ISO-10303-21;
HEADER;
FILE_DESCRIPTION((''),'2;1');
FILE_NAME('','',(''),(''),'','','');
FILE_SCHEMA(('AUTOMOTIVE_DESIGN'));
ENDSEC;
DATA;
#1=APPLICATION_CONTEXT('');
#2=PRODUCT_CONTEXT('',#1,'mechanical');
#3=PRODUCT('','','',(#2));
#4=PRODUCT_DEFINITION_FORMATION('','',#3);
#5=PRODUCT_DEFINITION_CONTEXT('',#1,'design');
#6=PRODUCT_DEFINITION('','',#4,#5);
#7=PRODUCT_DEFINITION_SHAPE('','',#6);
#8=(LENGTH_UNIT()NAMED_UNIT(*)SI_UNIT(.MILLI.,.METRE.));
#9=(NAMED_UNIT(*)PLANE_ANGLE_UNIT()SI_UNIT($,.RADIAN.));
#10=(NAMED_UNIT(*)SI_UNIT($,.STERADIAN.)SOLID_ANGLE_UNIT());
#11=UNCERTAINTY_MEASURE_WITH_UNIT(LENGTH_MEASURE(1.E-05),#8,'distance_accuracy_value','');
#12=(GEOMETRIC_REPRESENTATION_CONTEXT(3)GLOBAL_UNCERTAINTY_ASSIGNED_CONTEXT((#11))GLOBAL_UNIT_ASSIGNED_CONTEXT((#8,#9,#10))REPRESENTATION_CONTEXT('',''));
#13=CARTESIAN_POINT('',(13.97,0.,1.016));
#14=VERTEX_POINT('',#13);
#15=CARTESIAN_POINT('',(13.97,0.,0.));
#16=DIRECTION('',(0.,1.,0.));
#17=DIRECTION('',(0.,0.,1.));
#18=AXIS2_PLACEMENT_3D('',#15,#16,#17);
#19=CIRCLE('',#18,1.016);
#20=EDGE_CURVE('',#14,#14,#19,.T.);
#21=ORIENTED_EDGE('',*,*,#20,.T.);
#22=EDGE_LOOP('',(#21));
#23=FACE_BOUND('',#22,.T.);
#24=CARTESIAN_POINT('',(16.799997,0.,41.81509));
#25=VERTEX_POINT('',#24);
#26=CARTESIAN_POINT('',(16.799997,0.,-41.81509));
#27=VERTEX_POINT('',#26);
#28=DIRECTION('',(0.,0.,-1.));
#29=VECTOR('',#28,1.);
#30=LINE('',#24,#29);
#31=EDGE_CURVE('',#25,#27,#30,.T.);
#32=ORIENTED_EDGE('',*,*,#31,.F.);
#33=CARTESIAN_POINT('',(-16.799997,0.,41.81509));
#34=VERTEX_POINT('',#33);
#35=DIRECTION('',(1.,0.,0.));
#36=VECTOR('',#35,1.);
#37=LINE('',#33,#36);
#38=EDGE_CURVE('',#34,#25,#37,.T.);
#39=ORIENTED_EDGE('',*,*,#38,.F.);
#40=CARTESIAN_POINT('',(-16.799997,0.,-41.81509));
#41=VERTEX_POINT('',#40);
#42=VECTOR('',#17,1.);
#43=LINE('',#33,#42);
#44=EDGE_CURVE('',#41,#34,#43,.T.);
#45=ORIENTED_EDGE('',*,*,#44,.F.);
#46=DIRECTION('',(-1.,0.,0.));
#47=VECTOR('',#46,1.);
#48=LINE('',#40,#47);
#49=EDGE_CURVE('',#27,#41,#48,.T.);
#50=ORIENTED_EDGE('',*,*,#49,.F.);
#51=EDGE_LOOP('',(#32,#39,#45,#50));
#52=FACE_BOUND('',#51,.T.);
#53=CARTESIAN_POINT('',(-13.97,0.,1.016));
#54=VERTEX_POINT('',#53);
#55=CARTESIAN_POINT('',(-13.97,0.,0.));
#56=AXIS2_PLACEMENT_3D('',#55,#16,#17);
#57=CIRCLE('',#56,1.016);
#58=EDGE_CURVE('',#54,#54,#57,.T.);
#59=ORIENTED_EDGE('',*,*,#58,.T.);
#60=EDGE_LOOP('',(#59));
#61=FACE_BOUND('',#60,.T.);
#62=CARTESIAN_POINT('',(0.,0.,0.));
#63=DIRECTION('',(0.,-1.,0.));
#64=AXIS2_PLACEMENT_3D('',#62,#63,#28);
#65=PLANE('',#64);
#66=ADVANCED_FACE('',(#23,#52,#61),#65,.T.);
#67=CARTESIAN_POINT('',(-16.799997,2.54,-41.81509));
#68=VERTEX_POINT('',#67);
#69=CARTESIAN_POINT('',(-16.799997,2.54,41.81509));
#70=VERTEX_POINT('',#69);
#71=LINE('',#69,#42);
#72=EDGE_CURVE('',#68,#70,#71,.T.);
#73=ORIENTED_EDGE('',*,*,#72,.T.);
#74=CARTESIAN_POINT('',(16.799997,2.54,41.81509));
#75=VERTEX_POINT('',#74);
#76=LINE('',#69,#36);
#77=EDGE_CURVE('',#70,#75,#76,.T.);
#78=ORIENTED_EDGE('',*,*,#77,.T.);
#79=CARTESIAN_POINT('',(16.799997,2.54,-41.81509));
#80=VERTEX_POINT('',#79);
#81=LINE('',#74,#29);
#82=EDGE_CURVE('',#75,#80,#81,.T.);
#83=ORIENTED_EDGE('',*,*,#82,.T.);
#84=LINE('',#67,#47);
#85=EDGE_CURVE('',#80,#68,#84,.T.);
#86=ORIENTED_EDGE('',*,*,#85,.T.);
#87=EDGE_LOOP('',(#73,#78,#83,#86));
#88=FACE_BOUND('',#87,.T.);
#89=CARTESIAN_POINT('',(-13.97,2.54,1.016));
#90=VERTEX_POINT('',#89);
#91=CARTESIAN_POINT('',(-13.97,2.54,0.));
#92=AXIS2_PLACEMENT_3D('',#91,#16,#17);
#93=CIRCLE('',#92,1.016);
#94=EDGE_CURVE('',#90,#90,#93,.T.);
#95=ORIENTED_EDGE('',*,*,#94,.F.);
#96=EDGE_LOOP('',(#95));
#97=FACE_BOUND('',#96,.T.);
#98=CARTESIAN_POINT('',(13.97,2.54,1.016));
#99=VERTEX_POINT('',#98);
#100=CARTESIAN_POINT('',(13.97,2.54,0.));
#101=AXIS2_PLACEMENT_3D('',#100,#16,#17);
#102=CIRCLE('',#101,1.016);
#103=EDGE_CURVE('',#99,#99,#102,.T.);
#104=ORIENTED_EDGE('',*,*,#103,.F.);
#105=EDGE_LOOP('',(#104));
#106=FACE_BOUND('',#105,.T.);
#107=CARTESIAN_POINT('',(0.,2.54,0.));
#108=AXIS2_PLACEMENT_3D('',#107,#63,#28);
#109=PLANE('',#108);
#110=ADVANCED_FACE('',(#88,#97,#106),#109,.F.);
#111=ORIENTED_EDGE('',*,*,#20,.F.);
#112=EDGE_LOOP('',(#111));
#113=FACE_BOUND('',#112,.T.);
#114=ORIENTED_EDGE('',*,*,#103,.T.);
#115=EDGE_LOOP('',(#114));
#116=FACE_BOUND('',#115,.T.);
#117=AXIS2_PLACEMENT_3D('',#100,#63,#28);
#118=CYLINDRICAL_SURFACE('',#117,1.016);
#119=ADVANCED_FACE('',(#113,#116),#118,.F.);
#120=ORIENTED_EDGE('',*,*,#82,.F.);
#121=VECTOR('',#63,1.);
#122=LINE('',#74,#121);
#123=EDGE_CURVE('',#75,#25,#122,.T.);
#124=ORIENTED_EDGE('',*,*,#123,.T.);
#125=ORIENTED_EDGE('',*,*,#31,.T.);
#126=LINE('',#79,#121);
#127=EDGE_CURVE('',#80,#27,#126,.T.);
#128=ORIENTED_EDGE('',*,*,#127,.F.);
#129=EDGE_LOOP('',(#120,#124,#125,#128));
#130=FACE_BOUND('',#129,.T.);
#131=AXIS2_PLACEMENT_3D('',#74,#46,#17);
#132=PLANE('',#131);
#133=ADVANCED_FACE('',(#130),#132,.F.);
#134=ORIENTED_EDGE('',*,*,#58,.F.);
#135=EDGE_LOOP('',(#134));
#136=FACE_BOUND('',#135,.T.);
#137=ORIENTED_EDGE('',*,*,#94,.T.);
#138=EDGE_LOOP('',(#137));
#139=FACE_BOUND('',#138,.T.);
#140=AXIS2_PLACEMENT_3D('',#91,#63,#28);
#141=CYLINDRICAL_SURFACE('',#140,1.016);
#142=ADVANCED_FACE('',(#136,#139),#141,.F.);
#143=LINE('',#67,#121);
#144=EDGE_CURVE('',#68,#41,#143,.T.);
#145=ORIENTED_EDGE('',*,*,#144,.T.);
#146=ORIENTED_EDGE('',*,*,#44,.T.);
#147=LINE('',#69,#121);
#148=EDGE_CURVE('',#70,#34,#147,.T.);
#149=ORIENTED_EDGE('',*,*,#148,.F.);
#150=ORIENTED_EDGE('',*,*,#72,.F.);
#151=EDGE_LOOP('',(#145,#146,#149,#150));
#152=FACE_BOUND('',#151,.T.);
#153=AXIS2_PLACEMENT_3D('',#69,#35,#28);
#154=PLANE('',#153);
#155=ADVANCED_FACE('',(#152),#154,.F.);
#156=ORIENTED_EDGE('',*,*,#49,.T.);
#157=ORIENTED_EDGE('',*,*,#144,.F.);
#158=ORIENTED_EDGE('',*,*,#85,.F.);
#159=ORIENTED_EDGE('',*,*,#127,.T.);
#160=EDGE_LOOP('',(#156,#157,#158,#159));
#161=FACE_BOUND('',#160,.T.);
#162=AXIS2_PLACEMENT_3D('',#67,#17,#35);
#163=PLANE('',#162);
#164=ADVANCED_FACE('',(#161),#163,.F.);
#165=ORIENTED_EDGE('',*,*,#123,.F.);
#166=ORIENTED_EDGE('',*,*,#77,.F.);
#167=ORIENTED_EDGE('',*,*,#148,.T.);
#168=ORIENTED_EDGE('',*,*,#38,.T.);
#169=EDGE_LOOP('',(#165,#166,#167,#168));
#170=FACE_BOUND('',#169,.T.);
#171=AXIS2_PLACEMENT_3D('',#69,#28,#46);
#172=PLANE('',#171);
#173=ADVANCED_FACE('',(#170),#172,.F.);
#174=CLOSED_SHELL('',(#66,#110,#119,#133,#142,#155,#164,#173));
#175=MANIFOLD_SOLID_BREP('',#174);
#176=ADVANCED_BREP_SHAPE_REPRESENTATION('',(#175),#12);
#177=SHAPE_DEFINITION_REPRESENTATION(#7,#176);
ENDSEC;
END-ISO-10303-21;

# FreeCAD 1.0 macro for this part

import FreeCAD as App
import Part
import Sketcher
from FreeCAD import Vector
Q = App.Units.Quantity

doc = App.newDocument("Part")
params = doc.addObject("Spreadsheet::Sheet", "Params")
for row, (alias, value) in enumerate([
    ("sketch1_diameter", "0.08 in"),
    ("pad1_length", "0.1 in"),
], start=1):
    params.set(f"A{row}", alias)
    params.set(f"B{row}", "=" + value)
    params.setAlias(f"B{row}", alias)

body = doc.addObject("PartDesign::Body", "Body")

sketch1 = body.newObject("Sketcher::SketchObject", "Sketch")
sketch1.AttachmentSupport = (doc.getObject("XZ_Plane"), [""])
sketch1.MapMode = "FlatFace"
sketch1.addGeometry(Part.LineSegment(Vector(-16.799997, -41.81509, 0), Vector(-16.799997, 41.81509, 0)), False)
sketch1.addGeometry(Part.LineSegment(Vector(-16.799997, 41.81509, 0), Vector(16.799997, 41.81509, 0)), False)
sketch1.addGeometry(Part.LineSegment(Vector(16.799997, 41.81509, 0), Vector(16.799997, -41.81509, 0)), False)
sketch1.addGeometry(Part.LineSegment(Vector(16.799997, -41.81509, 0), Vector(-16.799997, -41.81509, 0)), False)
sketch1.addGeometry(Part.Circle(Vector(-13.97, 0, 0), Vector(0, 0, 1), 1.016), False)
sketch1.addGeometry(Part.Circle(Vector(13.97, 0, 0), Vector(0, 0, 1), 1.016), False)
sketch1.addConstraint(Sketcher.Constraint("Coincident", 0, 2, 1, 1))
sketch1.addConstraint(Sketcher.Constraint("Coincident", 1, 2, 2, 1))
sketch1.addConstraint(Sketcher.Constraint("Coincident", 2, 2, 3, 1))
sketch1.addConstraint(Sketcher.Constraint("Coincident", 3, 2, 0, 1))
sketch1.addConstraint(Sketcher.Constraint("Vertical", 0))
sketch1.addConstraint(Sketcher.Constraint("Horizontal", 1))
sketch1.addConstraint(Sketcher.Constraint("Vertical", 2))
sketch1.addConstraint(Sketcher.Constraint("Horizontal", 3))
sketch1.addConstraint(Sketcher.Constraint("Equal", 4, 5))
sketch1.addConstraint(Sketcher.Constraint("Symmetric", 4, 3, 5, 3, -1, 1))
sketch1.addConstraint(Sketcher.Constraint("Symmetric", 0, 2, 2, 2, -1, 1))
sketch1.addConstraint(Sketcher.Constraint("PointOnObject", 4, 3, -1))
sketch1.addConstraint(Sketcher.Constraint("Diameter", 4, Q("0.08 in")))
sketch1.addConstraint(Sketcher.Constraint("DistanceX", 4, 3, 5, 3, Q("1.1 in")))
sketch1.addConstraint(Sketcher.Constraint("DistanceY", 0, 1, 0, 2, Q("83.63018 mm")))
sketch1.addConstraint(Sketcher.Constraint("DistanceX", 1, 1, 1, 2, Q("33.599995 mm")))
sketch1.setExpression("Constraints[12]", "Params.sketch1_diameter")
pad1 = body.newObject("PartDesign::Pad", "Pad")
pad1.Profile = sketch1
pad1.setExpression("Length", "Params.pad1_length")
pad1.Reversed = True

doc.recompute()
